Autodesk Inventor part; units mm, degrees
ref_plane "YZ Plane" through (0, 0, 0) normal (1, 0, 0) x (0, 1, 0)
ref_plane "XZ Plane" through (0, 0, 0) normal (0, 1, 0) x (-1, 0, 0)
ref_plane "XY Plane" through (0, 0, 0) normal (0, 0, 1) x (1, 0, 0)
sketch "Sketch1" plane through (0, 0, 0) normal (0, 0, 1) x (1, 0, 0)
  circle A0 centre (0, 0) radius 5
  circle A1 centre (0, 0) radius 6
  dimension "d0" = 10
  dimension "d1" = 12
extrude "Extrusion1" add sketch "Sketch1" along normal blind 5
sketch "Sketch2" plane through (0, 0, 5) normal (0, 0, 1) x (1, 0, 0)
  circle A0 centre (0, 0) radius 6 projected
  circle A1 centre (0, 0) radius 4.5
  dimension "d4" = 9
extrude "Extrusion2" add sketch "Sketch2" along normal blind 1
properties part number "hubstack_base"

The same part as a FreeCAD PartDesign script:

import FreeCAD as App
import Part
import Sketcher

V = App.Vector
Q = App.Units.Quantity

doc = App.newDocument("Part")
body = doc.addObject("PartDesign::Body", "Body")

sketch1 = doc.addObject("Sketcher::SketchObject", "Sketch")
body.addObject(sketch1)
sketch1.AttachmentSupport = (doc.XY_Plane, [""])
sketch1.MapMode = "FlatFace"
sketch1.addGeometry([
    Part.Circle(V(0, 0, 0), V(0, 0, 1), 6),
    Part.Circle(V(0, 0, 0), V(0, 0, 1), 5),
], False)
sketch1.addConstraint([
    Sketcher.Constraint("Coincident", 0, 3, -1, 1),
    Sketcher.Constraint("Coincident", 1, 3, -1, 1),
    Sketcher.Constraint("Diameter", 0, Q("12 mm")),
    Sketcher.Constraint("Diameter", 1, Q("10 mm")),
])
pad1 = doc.addObject("PartDesign::Pad", "Pad")
body.addObject(pad1)
pad1.Profile = sketch1
pad1.Length = 5

sketch2 = doc.addObject("Sketcher::SketchObject", "Sketch001")
body.addObject(sketch2)
sketch2.AttachmentSupport = (doc.XY_Plane, [""])
sketch2.MapMode = "FlatFace"
sketch2.AttachmentOffset = App.Placement(V(0, 0, 5), App.Rotation())
sketch2.addGeometry([
    Part.Circle(V(0, 0, 0), V(0, 0, 1), 6),
    Part.Circle(V(0, 0, 0), V(0, 0, 1), 4.5),
], False)
sketch2.addConstraint([
    Sketcher.Constraint("Coincident", 0, 3, -1, 1),
    Sketcher.Constraint("Coincident", 1, 3, -1, 1),
    Sketcher.Constraint("Diameter", 1, Q("9 mm")),
    Sketcher.Constraint("Diameter", 0, Q("12 mm")),
])
pad2 = doc.addObject("PartDesign::Pad", "Pad001")
body.addObject(pad2)
pad2.Profile = sketch2
pad2.Length = 1

doc.recompute()
